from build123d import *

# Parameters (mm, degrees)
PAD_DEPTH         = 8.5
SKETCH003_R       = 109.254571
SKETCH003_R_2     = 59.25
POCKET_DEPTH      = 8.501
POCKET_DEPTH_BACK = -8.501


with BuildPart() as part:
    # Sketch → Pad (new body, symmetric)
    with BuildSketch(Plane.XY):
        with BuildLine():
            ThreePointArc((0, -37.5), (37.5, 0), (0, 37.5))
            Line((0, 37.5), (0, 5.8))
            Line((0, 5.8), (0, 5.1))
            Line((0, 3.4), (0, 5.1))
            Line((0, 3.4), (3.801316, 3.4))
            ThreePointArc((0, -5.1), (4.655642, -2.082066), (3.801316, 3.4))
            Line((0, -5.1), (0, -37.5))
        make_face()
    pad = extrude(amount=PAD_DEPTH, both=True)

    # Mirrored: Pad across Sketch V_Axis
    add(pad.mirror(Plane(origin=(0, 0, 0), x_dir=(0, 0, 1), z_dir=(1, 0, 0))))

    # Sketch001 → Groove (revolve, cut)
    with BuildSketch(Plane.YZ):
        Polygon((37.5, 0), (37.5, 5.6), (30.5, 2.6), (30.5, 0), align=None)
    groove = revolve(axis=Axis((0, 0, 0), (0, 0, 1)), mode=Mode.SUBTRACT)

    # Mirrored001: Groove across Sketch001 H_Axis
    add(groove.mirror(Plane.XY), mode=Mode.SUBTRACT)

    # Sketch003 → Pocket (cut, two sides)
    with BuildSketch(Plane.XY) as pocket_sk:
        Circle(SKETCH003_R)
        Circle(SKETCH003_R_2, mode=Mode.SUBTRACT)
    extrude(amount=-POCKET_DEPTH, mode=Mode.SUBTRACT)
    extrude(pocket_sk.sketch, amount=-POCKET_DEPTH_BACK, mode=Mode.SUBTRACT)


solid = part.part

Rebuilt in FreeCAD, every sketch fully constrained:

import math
import FreeCAD as App
import Part
import Sketcher

V = App.Vector


def add_polygon(sketch, points):
    """Adds a closed chain of lines whose ends are joined by coincident constraints."""
    first, n = sketch.GeometryCount, len(points)
    for a, b in zip(points, points[1:] + points[:1]):
        sketch.addGeometry(Part.LineSegment(App.Vector(*a, 0), App.Vector(*b, 0)), False)
    for i in range(n):
        sketch.addConstraint(Sketcher.Constraint("Coincident", first + i, 2, first + (i + 1) % n, 1))

doc = App.newDocument("Part")
body = doc.addObject("PartDesign::Body", "Body")

# Sketch on XY plane
sketch1 = body.newObject("Sketcher::SketchObject", "Sketch")
sketch1.AttachmentSupport = (doc.getObject("XY_Plane"), [""])
sketch1.MapMode = "FlatFace"
sketch1.addGeometry(Part.ArcOfCircle(Part.Circle(V(0, 0, 0), V(0, 0, 1), 37.5), math.radians(-90), math.radians(90)), False)
sketch1.addGeometry(Part.LineSegment(V(0, 37.5, 0), V(0, 3.4, 0)), False)
sketch1.addGeometry(Part.LineSegment(V(0, 3.4, 0), V(3.8, 3.4, 0)), False)
sketch1.addGeometry(Part.ArcOfCircle(Part.Circle(V(0, 0, 0), V(0, 0, 1), 5.1), math.radians(-90), math.radians(42)), False)
sketch1.addGeometry(Part.LineSegment(V(0, -5.1, 0), V(0, -37.5, 0)), False)
sketch1.addConstraint(Sketcher.Constraint("Coincident", 0, 2, 1, 1))
sketch1.addConstraint(Sketcher.Constraint("Coincident", 1, 2, 2, 1))
sketch1.addConstraint(Sketcher.Constraint("Coincident", 2, 2, 3, 2))
sketch1.addConstraint(Sketcher.Constraint("Coincident", 3, 1, 4, 1))
sketch1.addConstraint(Sketcher.Constraint("Coincident", 4, 2, 0, 1))
sketch1.addConstraint(Sketcher.Constraint("Vertical", 1))
sketch1.addConstraint(Sketcher.Constraint("Horizontal", 2))
sketch1.addConstraint(Sketcher.Constraint("Vertical", 4))
sketch1.addConstraint(Sketcher.Constraint("Coincident", 0, 3, -1, 1))
sketch1.addConstraint(Sketcher.Constraint("Coincident", 3, 3, -1, 1))
sketch1.addConstraint(Sketcher.Constraint("PointOnObject", 0, 2, -2))
sketch1.addConstraint(Sketcher.Constraint("PointOnObject", 3, 1, -2))
sketch1.addConstraint(Sketcher.Constraint("Radius", 0, 37.5))
sketch1.addConstraint(Sketcher.Constraint("Radius", 3, 5.1))
sketch1.addConstraint(Sketcher.Constraint("DistanceY", 1, 2, 1, 1, 34.1))
pad1 = body.newObject("PartDesign::Pad", "Pad")
pad1.Profile = sketch1
pad1.Length = 17
pad1.Midplane = True
doc.recompute()

mirrored = body.newObject("PartDesign::Mirrored", "Mirrored")
mirrored.Originals = [pad1]
mirrored.MirrorPlane = (doc.getObject("YZ_Plane"), [""])
body.Tip = mirrored

# Sketch on YZ plane
sketch2 = body.newObject("Sketcher::SketchObject", "Sketch001")
sketch2.AttachmentSupport = (doc.getObject("YZ_Plane"), [""])
sketch2.MapMode = "FlatFace"
add_polygon(sketch2, [(37.5, 0), (37.5, 5.6), (30.5, 2.6), (30.5, 0)])  # lines 0-3
sketch2.addConstraint(Sketcher.Constraint("Vertical", 0))
sketch2.addConstraint(Sketcher.Constraint("Vertical", 2))
sketch2.addConstraint(Sketcher.Constraint("Horizontal", 3))
sketch2.addConstraint(Sketcher.Constraint("PointOnObject", 2, 2, -1))
sketch2.addConstraint(Sketcher.Constraint("DistanceX", 3, 1, 3, 2, 7.0))
sketch2.addConstraint(Sketcher.Constraint("DistanceY", 0, 1, 0, 2, 5.6))
sketch2.addConstraint(Sketcher.Constraint("DistanceY", 2, 2, 2, 1, 2.6))
sketch2.addConstraint(Sketcher.Constraint("DistanceX", -1, 1, 0, 2, 37.5))
groove = body.newObject("PartDesign::Groove", "Groove")
groove.Profile = sketch2
groove.ReferenceAxis = (sketch2, ["V_Axis"])
groove.Angle = 360
doc.recompute()

mirrored2 = body.newObject("PartDesign::Mirrored", "Mirrored001")
mirrored2.Originals = [groove]
mirrored2.MirrorPlane = (doc.getObject("XY_Plane"), [""])
body.Tip = mirrored2

# Sketch on XY plane
sketch3 = body.newObject("Sketcher::SketchObject", "Sketch002")
sketch3.AttachmentSupport = (doc.getObject("XY_Plane"), [""])
sketch3.MapMode = "FlatFace"
sketch3.addGeometry(Part.Circle(V(0, 0, 0), V(0, 0, 1), 109), False)
sketch3.addGeometry(Part.Circle(V(0, 0, 0), V(0, 0, 1), 59), False)
sketch3.addConstraint(Sketcher.Constraint("Coincident", 0, 3, -1, 1))
sketch3.addConstraint(Sketcher.Constraint("Coincident", 1, 3, -1, 1))
sketch3.addConstraint(Sketcher.Constraint("Diameter", 1, 118.5))
sketch3.addConstraint(Sketcher.Constraint("Diameter", 0, 218.509142))
pocket1 = body.newObject("PartDesign::Pocket", "Pocket")
pocket1.Profile = sketch3
pocket1.Type = "ThroughAll"
pocket1.Midplane = True

doc.recompute()
